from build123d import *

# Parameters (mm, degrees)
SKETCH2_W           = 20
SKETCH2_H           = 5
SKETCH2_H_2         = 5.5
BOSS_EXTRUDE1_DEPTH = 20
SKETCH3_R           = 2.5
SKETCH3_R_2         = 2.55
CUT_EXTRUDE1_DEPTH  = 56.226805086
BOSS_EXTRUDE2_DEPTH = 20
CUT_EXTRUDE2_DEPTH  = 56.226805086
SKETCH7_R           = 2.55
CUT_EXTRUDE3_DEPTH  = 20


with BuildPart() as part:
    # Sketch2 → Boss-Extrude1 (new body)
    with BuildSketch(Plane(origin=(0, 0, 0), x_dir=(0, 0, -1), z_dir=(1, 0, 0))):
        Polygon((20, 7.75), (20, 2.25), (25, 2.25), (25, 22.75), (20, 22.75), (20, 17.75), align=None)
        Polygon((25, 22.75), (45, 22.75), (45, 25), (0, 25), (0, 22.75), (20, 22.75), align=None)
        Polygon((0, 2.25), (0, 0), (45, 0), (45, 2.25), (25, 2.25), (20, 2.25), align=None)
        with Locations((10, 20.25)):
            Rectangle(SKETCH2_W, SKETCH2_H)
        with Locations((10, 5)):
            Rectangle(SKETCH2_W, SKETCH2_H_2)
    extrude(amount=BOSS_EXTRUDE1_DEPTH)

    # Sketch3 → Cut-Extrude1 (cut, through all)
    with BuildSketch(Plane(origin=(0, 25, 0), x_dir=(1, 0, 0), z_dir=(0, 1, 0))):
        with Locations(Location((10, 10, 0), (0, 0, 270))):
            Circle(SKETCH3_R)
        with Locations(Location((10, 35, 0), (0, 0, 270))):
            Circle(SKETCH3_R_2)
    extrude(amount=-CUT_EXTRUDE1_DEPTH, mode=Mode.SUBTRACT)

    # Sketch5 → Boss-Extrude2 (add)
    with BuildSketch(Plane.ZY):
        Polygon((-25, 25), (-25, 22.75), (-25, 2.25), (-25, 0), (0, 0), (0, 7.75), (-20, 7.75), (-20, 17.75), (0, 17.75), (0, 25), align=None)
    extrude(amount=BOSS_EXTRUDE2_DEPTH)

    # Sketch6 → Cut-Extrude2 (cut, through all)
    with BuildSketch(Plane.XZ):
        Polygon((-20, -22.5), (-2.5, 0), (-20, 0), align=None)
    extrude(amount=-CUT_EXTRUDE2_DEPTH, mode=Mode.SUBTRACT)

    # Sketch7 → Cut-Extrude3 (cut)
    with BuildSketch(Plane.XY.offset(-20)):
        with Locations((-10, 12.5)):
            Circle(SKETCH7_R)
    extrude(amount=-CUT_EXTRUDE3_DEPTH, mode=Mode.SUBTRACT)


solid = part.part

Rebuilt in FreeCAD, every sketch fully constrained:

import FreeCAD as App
import Part
import Sketcher

V = App.Vector
Q = App.Units.Quantity


def add_polygon(sketch, points):
    """Adds a closed chain of lines whose ends are joined by coincident constraints."""
    first, n = sketch.GeometryCount, len(points)
    for a, b in zip(points, points[1:] + points[:1]):
        sketch.addGeometry(Part.LineSegment(App.Vector(*a, 0), App.Vector(*b, 0)), False)
    for i in range(n):
        sketch.addConstraint(Sketcher.Constraint("Coincident", first + i, 2, first + (i + 1) % n, 1))

doc = App.newDocument("Part")
body = doc.addObject("PartDesign::Body", "Body")

# Sketch on YZ plane
sketch1 = doc.addObject("Sketcher::SketchObject", "Sketch")
body.addObject(sketch1)
sketch1.AttachmentSupport = (doc.YZ_Plane, [""])
sketch1.MapMode = "FlatFace"
add_polygon(sketch1, [(2.2, -25), (22.8, -25), (22.8, -45), (25, -45), (25, 0), (17.8, 0), (17.8, -20), (7.8, -20), (7.8, 0), (0, 0), (0, -45), (2.2, -45)])  # lines 0-11
sketch1.addConstraint([
    Sketcher.Constraint("Horizontal", 0),
    Sketcher.Constraint("Vertical", 1),
    Sketcher.Constraint("Horizontal", 2),
    Sketcher.Constraint("Vertical", 3),
    Sketcher.Constraint("Horizontal", 4),
    Sketcher.Constraint("Vertical", 5),
    Sketcher.Constraint("Horizontal", 6),
    Sketcher.Constraint("Vertical", 7),
    Sketcher.Constraint("Horizontal", 8),
    Sketcher.Constraint("Vertical", 9),
    Sketcher.Constraint("Horizontal", 10),
    Sketcher.Constraint("Vertical", 11),
    Sketcher.Constraint("Coincident", 8, 2, -1, 1),
    Sketcher.Constraint("PointOnObject", 3, 2, -1),
    Sketcher.Constraint("Horizontal", 2, 2, 9, 2),
    Sketcher.Constraint("Equal", 2, 10),
    Sketcher.Constraint("Equal", 1, 5),
    Sketcher.Constraint("DistanceX", 6, 2, 6, 1, Q("10 mm")),
    Sketcher.Constraint("DistanceY", 1, 2, 1, 1, Q("20 mm")),
    Sketcher.Constraint("DistanceY", 3, 1, 3, 2, Q("45 mm")),
    Sketcher.Constraint("DistanceX", 0, 1, 0, 2, Q("20.5 mm")),
    Sketcher.Constraint("DistanceX", -1, 1, 2, 2, Q("25 mm")),
    Sketcher.Constraint("DistanceX", 4, 2, 0, 2, Q("5 mm")),
])
pad1 = doc.addObject("PartDesign::Pad", "Pad")
body.addObject(pad1)
pad1.Profile = sketch1
pad1.Length = 20

# Sketch on XZ plane
sketch2 = doc.addObject("Sketcher::SketchObject", "Sketch001")
body.addObject(sketch2)
sketch2.AttachmentSupport = (doc.XZ_Plane, [""])
sketch2.MapMode = "FlatFace"
sketch2.AttachmentOffset = App.Placement(V(0, 0, -25), App.Rotation())
sketch2.addGeometry([
    Part.Circle(V(10, -10, 0), V(0, 0, 1), 2.5),
    Part.Circle(V(10, -35, 0), V(0, 0, 1), 2.5),
], False)
sketch2.addConstraint([
    Sketcher.Constraint("Vertical", 0, 3, 1, 3),
    Sketcher.Constraint("Diameter", 0, Q("5 mm")),
    Sketcher.Constraint("Diameter", 1, Q("5.1 mm")),
    Sketcher.Constraint("DistanceX", -1, 1, 0, 3, Q("10 mm")),
    Sketcher.Constraint("DistanceY", 0, 3, -1, 1, Q("10 mm")),
    Sketcher.Constraint("DistanceY", 1, 3, -1, 1, Q("35 mm")),
])
pocket1 = doc.addObject("PartDesign::Pocket", "Pocket")
body.addObject(pocket1)
pocket1.Profile = sketch2
pocket1.Type = "ThroughAll"
pocket1.Reversed = True

# Sketch on YZ plane
sketch3 = doc.addObject("Sketcher::SketchObject", "Sketch002")
body.addObject(sketch3)
sketch3.AttachmentSupport = (doc.YZ_Plane, [""])
sketch3.MapMode = "FlatFace"
add_polygon(sketch3, [(25, -25), (0, -25), (0, 0), (8, 0), (8, -20), (18, -20), (18, 0), (25, 0)])  # lines 0-7
sketch3.addConstraint([
    Sketcher.Constraint("Horizontal", 0),
    Sketcher.Constraint("Vertical", 1),
    Sketcher.Constraint("Horizontal", 2),
    Sketcher.Constraint("Vertical", 3),
    Sketcher.Constraint("Horizontal", 4),
    Sketcher.Constraint("Vertical", 5),
    Sketcher.Constraint("Horizontal", 6),
    Sketcher.Constraint("Vertical", 7),
    Sketcher.Constraint("Coincident", 1, 2, -1, 1),
    Sketcher.Constraint("PointOnObject", 5, 2, -1),
    Sketcher.Constraint("Equal", 0, 1),
    Sketcher.Constraint("DistanceX", 0, 2, 0, 1, Q("25 mm")),
    Sketcher.Constraint("DistanceX", 4, 1, 4, 2, Q("10 mm")),
    Sketcher.Constraint("DistanceY", 3, 2, 3, 1, Q("20 mm")),
    Sketcher.Constraint("DistanceX", 2, 1, 2, 2, Q("7.75 mm")),
])
pad2 = doc.addObject("PartDesign::Pad", "Pad001")
body.addObject(pad2)
pad2.Profile = sketch3
pad2.Length = 20
pad2.Reversed = True

# Sketch on XZ plane
sketch4 = doc.addObject("Sketcher::SketchObject", "Sketch003")
body.addObject(sketch4)
sketch4.AttachmentSupport = (doc.XZ_Plane, [""])
sketch4.MapMode = "FlatFace"
add_polygon(sketch4, [(-20, -22), (-2, 0), (-20, 0)])  # lines 0-2
sketch4.addConstraint([
    Sketcher.Constraint("Horizontal", 1),
    Sketcher.Constraint("Vertical", 2),
    Sketcher.Constraint("PointOnObject", 0, 2, -1),
    Sketcher.Constraint("DistanceX", 1, 2, 1, 1, Q("17.5 mm")),
    Sketcher.Constraint("DistanceY", 2, 2, 2, 1, Q("22.5 mm")),
    Sketcher.Constraint("DistanceX", 1, 2, -1, 1, Q("20 mm")),
])
pocket2 = doc.addObject("PartDesign::Pocket", "Pocket001")
body.addObject(pocket2)
pocket2.Profile = sketch4
pocket2.Type = "ThroughAll"

# Sketch on XY plane
sketch5 = doc.addObject("Sketcher::SketchObject", "Sketch004")
body.addObject(sketch5)
sketch5.AttachmentSupport = (doc.XY_Plane, [""])
sketch5.MapMode = "FlatFace"
sketch5.AttachmentOffset = App.Placement(V(0, 0, -20), App.Rotation())
sketch5.addGeometry(Part.Circle(V(-10, 12.5, 0), V(0, 0, 1), 2.5), False)
sketch5.addConstraint([
    Sketcher.Constraint("Diameter", 0, Q("5.1 mm")),
    Sketcher.Constraint("DistanceX", 0, 3, -1, 1, Q("10 mm")),
    Sketcher.Constraint("DistanceY", -1, 1, 0, 3, Q("12.5 mm")),
])
pocket3 = doc.addObject("PartDesign::Pocket", "Pocket002")
body.addObject(pocket3)
pocket3.Profile = sketch5
pocket3.Length = 20

doc.recompute()
